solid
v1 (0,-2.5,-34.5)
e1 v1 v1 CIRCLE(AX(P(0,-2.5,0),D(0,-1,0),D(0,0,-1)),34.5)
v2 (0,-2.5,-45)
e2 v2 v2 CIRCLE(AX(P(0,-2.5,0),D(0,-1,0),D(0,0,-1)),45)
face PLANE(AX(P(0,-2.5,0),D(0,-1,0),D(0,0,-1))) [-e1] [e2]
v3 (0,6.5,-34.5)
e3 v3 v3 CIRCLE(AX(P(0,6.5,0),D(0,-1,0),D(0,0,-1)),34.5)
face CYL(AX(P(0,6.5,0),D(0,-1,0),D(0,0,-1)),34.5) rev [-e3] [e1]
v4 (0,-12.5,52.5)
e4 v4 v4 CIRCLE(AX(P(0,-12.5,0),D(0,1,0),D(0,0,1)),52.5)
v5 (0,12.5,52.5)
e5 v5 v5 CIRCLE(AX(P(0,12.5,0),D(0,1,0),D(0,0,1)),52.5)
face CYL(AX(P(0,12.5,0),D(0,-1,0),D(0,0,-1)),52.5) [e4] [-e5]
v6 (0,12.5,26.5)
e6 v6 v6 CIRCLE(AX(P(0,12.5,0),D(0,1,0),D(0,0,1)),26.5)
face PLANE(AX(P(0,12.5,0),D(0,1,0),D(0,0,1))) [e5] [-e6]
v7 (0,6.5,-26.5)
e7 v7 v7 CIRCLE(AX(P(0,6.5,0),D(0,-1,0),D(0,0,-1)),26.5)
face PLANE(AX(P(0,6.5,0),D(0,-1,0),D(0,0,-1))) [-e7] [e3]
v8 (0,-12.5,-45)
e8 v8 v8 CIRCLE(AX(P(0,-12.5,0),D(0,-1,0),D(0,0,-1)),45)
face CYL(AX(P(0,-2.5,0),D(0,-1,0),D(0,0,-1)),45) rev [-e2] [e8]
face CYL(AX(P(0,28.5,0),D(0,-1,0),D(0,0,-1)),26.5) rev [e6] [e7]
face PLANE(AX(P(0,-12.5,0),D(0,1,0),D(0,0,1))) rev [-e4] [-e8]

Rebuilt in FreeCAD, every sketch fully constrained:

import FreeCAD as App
import Part
import Sketcher
from FreeCAD import Vector

doc = App.newDocument("Part")
body = doc.addObject("PartDesign::Body", "Body")

# Sketch on XZ plane
sketch1 = body.newObject("Sketcher::SketchObject", "Sketch")
sketch1.AttachmentSupport = (doc.getObject("XZ_Plane"), [""])
sketch1.MapMode = "FlatFace"
sketch1.addGeometry(Part.Circle(Vector(0, 0, 0), Vector(0, 0, 1), 52), False)
sketch1.addConstraint([
    Sketcher.Constraint("Coincident", 0, 3, -1, 1),
    Sketcher.Constraint("Diameter", 0, 105.0),
])
pad1 = body.newObject("PartDesign::Pad", "Pad")
pad1.Profile = sketch1
pad1.Length = 25
pad1.Midplane = True

# Sketch on XZ plane
sketch2 = body.newObject("Sketcher::SketchObject", "Sketch001")
sketch2.AttachmentSupport = (doc.getObject("XZ_Plane"), [""])
sketch2.MapMode = "FlatFace"
sketch2.AttachmentOffset = App.Placement(Vector(0, 0, 12.5), App.Rotation())
sketch2.addGeometry(Part.Circle(Vector(0, 0, 0), Vector(0, 0, 1), 45), False)
sketch2.addConstraint([
    Sketcher.Constraint("Coincident", 0, 3, -1, 1),
    Sketcher.Constraint("Diameter", 0, 90.0),
])
pocket1 = body.newObject("PartDesign::Pocket", "Pocket")
pocket1.Profile = sketch2
pocket1.Length = 10

# Sketch on XZ plane
sketch3 = body.newObject("Sketcher::SketchObject", "Sketch002")
sketch3.AttachmentSupport = (doc.getObject("XZ_Plane"), [""])
sketch3.MapMode = "FlatFace"
sketch3.AttachmentOffset = App.Placement(Vector(0, 0, 2.5), App.Rotation())
sketch3.addGeometry(Part.Circle(Vector(0, 0, 0), Vector(0, 0, 1), 34), False)
sketch3.addConstraint([
    Sketcher.Constraint("Coincident", 0, 3, -1, 1),
    Sketcher.Constraint("Diameter", 0, 69.0),
])
pocket2 = body.newObject("PartDesign::Pocket", "Pocket001")
pocket2.Profile = sketch3
pocket2.Length = 9

# Sketch on XZ plane
sketch4 = body.newObject("Sketcher::SketchObject", "Sketch003")
sketch4.AttachmentSupport = (doc.getObject("XZ_Plane"), [""])
sketch4.MapMode = "FlatFace"
sketch4.AttachmentOffset = App.Placement(Vector(0, 0, -6.5), App.Rotation())
sketch4.addGeometry(Part.Circle(Vector(0, 0, 0), Vector(0, 0, 1), 26), False)
sketch4.addConstraint([
    Sketcher.Constraint("Coincident", 0, 3, -1, 1),
    Sketcher.Constraint("Diameter", 0, 53.0),
])
pocket3 = body.newObject("PartDesign::Pocket", "Pocket002")
pocket3.Profile = sketch4
pocket3.Length = 22

doc.recompute()
